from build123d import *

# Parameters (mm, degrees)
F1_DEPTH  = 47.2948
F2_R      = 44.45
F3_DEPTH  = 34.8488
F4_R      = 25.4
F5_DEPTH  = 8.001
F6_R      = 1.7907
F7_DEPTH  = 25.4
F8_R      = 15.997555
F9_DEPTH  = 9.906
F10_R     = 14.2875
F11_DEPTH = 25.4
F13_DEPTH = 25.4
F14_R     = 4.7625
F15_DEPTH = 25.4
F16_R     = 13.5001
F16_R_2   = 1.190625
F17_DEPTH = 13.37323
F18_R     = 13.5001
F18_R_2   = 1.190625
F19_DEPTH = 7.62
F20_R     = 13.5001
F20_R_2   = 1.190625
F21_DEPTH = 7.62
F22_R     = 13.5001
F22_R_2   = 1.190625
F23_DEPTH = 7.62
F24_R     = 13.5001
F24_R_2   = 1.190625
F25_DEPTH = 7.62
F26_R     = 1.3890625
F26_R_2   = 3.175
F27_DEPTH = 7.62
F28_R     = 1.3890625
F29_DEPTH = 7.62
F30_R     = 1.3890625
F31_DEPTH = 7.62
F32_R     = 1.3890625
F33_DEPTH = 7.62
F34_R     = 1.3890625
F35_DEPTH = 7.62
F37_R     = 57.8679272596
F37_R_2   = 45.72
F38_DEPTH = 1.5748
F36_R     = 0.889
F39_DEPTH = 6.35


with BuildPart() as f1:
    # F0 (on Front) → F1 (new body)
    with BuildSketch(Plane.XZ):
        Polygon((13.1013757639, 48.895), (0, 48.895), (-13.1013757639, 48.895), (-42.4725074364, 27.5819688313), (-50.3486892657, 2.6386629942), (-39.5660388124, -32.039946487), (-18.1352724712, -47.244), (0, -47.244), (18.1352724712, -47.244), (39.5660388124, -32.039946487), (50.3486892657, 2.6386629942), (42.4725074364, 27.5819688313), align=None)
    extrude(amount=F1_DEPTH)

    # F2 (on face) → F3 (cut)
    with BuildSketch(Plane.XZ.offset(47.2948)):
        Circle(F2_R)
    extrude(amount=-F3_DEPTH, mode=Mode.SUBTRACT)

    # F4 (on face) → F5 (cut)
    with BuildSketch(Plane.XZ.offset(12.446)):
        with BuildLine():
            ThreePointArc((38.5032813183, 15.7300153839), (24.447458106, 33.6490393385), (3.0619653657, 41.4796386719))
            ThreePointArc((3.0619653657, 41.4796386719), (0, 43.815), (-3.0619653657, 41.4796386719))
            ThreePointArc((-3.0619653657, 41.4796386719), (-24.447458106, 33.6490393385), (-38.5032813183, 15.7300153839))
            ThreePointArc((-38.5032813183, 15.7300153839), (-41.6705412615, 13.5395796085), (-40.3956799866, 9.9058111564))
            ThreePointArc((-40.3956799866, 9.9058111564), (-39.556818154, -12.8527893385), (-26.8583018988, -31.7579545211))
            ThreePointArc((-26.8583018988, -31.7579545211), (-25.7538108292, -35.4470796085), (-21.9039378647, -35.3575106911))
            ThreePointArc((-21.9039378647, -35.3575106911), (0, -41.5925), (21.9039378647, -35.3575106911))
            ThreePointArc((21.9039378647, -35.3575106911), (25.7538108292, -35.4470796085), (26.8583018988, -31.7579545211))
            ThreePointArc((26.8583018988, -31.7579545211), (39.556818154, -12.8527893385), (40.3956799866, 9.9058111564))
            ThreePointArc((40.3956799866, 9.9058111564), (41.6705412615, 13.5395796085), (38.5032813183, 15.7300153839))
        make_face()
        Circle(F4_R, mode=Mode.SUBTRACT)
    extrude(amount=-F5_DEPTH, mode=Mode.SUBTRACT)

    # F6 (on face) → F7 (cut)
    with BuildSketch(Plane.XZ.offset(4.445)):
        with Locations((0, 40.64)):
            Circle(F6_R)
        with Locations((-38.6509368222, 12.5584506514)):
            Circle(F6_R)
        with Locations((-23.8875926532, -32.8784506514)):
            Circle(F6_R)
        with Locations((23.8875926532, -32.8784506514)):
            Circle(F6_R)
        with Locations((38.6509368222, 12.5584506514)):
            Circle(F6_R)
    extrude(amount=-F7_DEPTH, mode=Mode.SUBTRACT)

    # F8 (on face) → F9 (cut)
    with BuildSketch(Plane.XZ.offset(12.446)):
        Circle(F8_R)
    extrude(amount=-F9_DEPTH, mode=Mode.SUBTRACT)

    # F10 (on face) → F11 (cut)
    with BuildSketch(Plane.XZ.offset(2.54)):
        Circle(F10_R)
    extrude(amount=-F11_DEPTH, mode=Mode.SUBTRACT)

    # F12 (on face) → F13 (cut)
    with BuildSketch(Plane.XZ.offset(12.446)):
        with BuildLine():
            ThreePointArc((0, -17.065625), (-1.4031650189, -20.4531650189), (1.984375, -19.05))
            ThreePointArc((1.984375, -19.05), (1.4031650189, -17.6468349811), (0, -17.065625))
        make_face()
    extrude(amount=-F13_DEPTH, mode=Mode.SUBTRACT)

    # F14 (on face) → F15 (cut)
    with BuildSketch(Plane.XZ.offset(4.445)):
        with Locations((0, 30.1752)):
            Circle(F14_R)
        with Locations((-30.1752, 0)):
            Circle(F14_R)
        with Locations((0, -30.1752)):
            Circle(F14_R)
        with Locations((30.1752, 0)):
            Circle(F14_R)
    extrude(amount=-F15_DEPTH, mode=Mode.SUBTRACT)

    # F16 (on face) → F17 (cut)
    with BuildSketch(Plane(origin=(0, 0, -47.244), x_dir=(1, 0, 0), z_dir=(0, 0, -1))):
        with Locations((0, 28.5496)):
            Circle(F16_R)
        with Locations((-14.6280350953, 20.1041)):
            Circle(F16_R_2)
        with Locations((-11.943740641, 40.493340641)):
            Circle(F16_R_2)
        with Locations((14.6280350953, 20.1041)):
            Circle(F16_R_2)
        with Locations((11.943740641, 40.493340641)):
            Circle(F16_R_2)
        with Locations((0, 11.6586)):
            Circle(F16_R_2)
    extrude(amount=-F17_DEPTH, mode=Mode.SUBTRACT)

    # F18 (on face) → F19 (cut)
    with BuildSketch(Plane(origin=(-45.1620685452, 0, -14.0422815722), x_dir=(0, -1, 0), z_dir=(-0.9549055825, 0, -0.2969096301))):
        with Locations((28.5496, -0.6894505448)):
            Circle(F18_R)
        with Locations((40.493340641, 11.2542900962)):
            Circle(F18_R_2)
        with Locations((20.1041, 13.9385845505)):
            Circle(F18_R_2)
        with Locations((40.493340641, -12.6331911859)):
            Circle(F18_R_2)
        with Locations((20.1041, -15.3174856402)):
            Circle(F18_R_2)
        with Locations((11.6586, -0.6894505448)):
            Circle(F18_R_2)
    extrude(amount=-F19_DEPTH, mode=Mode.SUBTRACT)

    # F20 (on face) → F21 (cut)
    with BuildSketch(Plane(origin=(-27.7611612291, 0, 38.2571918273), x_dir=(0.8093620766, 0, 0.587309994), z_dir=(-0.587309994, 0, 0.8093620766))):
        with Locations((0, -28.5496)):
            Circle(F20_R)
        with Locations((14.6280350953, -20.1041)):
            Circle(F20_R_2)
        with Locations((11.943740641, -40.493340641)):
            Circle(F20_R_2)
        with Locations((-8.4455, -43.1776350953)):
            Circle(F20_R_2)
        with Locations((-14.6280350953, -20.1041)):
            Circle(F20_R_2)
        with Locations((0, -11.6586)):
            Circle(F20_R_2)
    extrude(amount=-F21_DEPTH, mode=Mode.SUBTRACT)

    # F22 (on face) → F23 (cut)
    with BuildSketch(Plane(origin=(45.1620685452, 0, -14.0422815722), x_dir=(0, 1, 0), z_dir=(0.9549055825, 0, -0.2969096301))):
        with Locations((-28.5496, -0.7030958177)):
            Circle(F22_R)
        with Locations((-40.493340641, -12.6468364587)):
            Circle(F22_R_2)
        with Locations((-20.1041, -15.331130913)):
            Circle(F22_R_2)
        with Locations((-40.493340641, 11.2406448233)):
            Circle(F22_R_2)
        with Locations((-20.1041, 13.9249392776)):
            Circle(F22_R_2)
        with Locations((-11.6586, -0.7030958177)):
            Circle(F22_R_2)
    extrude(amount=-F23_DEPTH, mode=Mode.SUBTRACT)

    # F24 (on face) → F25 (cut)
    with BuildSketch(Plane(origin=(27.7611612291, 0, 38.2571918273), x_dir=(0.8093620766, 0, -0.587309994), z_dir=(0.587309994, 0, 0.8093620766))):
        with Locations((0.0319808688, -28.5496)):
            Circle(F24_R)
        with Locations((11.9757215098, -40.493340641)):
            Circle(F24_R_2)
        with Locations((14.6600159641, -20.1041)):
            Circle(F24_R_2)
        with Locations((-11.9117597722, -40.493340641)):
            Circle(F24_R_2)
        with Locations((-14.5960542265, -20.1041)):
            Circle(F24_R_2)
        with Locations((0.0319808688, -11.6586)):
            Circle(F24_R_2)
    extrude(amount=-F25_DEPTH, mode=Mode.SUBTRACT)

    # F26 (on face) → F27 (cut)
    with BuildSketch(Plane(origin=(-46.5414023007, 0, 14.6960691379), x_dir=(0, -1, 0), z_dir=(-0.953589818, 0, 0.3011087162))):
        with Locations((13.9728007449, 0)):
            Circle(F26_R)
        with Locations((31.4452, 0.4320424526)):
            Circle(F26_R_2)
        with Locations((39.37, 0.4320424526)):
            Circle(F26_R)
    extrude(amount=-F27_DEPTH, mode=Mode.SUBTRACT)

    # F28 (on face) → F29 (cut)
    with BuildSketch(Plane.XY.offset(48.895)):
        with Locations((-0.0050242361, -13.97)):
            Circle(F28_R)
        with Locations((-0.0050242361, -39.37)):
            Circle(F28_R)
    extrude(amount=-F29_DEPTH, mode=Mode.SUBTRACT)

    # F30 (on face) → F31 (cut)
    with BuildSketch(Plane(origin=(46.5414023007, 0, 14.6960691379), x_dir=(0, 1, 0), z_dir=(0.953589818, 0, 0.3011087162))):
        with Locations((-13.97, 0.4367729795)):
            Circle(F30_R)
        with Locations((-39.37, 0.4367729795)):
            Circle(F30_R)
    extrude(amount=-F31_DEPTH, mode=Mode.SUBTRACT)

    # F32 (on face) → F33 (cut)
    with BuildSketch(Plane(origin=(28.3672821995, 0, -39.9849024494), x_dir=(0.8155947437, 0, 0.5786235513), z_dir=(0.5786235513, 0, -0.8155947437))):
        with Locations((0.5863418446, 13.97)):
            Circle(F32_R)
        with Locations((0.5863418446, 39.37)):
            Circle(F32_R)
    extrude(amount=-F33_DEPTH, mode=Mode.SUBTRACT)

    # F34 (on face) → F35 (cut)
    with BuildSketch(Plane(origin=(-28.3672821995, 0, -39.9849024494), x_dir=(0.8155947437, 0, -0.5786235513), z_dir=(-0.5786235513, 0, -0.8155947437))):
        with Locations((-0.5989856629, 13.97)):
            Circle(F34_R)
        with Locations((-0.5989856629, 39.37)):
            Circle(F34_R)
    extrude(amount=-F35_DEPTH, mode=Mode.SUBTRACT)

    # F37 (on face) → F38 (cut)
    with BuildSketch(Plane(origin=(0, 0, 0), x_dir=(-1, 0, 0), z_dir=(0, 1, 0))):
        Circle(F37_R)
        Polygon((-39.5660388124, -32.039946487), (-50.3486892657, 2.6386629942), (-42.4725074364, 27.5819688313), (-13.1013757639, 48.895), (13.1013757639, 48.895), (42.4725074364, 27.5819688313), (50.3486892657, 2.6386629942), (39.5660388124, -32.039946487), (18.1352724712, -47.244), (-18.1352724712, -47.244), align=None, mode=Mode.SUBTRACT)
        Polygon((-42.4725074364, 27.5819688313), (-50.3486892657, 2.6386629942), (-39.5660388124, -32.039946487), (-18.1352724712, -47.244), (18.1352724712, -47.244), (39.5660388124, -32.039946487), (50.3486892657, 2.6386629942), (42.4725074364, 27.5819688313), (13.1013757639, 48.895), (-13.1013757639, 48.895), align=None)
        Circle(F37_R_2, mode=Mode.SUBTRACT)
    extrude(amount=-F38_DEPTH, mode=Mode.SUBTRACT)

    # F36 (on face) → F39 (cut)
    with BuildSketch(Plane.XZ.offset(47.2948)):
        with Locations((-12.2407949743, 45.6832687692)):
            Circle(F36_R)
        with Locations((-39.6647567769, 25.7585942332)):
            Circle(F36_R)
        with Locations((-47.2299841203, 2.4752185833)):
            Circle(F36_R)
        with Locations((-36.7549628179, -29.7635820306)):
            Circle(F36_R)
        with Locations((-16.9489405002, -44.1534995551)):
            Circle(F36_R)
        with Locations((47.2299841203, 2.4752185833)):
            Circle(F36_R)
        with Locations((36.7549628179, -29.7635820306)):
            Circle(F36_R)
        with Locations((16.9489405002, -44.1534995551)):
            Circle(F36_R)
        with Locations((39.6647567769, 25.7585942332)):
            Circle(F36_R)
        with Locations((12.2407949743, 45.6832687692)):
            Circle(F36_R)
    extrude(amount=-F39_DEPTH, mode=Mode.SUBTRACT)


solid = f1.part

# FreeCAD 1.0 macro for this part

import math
import FreeCAD as App
import Part
import Sketcher

V = App.Vector
Q = App.Units.Quantity


def add_polygon(sketch, points):
    """Adds a closed chain of lines whose ends are joined by coincident constraints."""
    first, n = sketch.GeometryCount, len(points)
    for a, b in zip(points, points[1:] + points[:1]):
        sketch.addGeometry(Part.LineSegment(App.Vector(*a, 0), App.Vector(*b, 0)), False)
    for i in range(n):
        sketch.addConstraint(Sketcher.Constraint("Coincident", first + i, 2, first + (i + 1) % n, 1))

doc = App.newDocument("Part")
body = doc.addObject("PartDesign::Body", "Body")

# Sketch on XZ plane
sketch1 = body.newObject("Sketcher::SketchObject", "Sketch")
sketch1.AttachmentSupport = (doc.getObject("XZ_Plane"), [""])
sketch1.MapMode = "FlatFace"
add_polygon(sketch1, [(13.101376, 48.895), (-13.101376, 48.895), (-42.472507, 27.581969), (-50.348689, 2.638663), (-39.566039, -32.039946), (-18.135272, -47.244), (18.135272, -47.244), (39.566039, -32.039946), (50.348689, 2.638663), (42.472507, 27.581969)])  # lines 0-9
sketch1.addConstraint([
    Sketcher.Constraint("Horizontal", 0),
    Sketcher.Constraint("Horizontal", 5),
    Sketcher.Constraint("Symmetric", 3, 2, 6, 2, -2),
    Sketcher.Constraint("Symmetric", 2, 2, 7, 2, -2),
    Sketcher.Constraint("Symmetric", 1, 2, 8, 2, -2),
    Sketcher.Constraint("Equal", 4, 6),
    Sketcher.Constraint("Equal", 1, 9),
    Sketcher.Constraint("DistanceY", 4, 2, -1, 1, Q("1.86 in")),
    Sketcher.Constraint("DistanceY", -1, 1, 0, 2, Q("1.925 in")),
    Sketcher.Constraint("DistanceX", 0, 2, 0, 1, Q("26.202752 mm")),
    Sketcher.Constraint("Distance", 2, Q("26.157269 mm")),
    Sketcher.Constraint("Distance", 3, Q("36.316271 mm")),
    Sketcher.Constraint("DistanceX", 5, 1, 5, 2, Q("36.270545 mm")),
    Sketcher.Constraint("DistanceY", -1, 1, 1, 2, Q("27.581969 mm")),
    Sketcher.Constraint("DistanceX", 2, 2, -1, 1, Q("50.348689 mm")),
    Sketcher.Constraint("DistanceX", 3, 2, -1, 1, Q("39.566039 mm")),
    Sketcher.Constraint("DistanceX", 1, 2, 0, 2, Q("29.371132 mm")),
])
pad1 = body.newObject("PartDesign::Pad", "Pad")
pad1.Profile = sketch1
pad1.Length = Q("1.862 in")

# Sketch on XZ plane
sketch2 = body.newObject("Sketcher::SketchObject", "Sketch001")
sketch2.AttachmentSupport = (doc.getObject("XZ_Plane"), [""])
sketch2.MapMode = "FlatFace"
sketch2.AttachmentOffset = App.Placement(V(0, 0, 1.862 * 25.4), App.Rotation())
sketch2.addGeometry(Part.Circle(V(0, 0, 0), V(0, 0, 1), 44.45), False)
sketch2.addConstraint([
    Sketcher.Constraint("Coincident", 0, 3, -1, 1),
    Sketcher.Constraint("Diameter", 0, Q("3.5 in")),
])
pocket1 = body.newObject("PartDesign::Pocket", "Pocket")
pocket1.Profile = sketch2
pocket1.Length = Q("1.372 in")

# Sketch on XZ plane
sketch3 = body.newObject("Sketcher::SketchObject", "Sketch002")
sketch3.AttachmentSupport = (doc.getObject("XZ_Plane"), [""])
sketch3.MapMode = "FlatFace"
sketch3.AttachmentOffset = App.Placement(V(0, 0, 0.49 * 25.4), App.Rotation())
sketch3.addGeometry([
    Part.ArcOfCircle(Part.Circle(V(0, 0, 0), V(0, 0, 1), 41.5925), math.radians(22.221832), math.radians(85.778168)),  # 0
    Part.ArcOfCircle(Part.Circle(V(0, 40.64, 0), V(0, 0, 1), 3.175), math.radians(15.33446), math.radians(164.66554)),  # 1
    Part.ArcOfCircle(Part.Circle(V(0, 0, 0), V(0, 0, 1), 41.5925), math.radians(94.221832), math.radians(157.778168)),  # 2
    Part.ArcOfCircle(Part.Circle(V(-38.650937, 12.558451, 0), V(0, 0, 1), 3.175), math.radians(87.33446), math.radians(236.66554)),  # 3
    Part.ArcOfCircle(Part.Circle(V(0, 0, 0), V(0, 0, 1), 41.5925), math.radians(166.221832), math.radians(229.778168)),  # 4
    Part.ArcOfCircle(Part.Circle(V(-23.887593, -32.878451, 0), V(0, 0, 1), 3.175), math.radians(159.33446), math.radians(308.66554)),  # 5
    Part.ArcOfCircle(Part.Circle(V(0, 0, 0), V(0, 0, 1), 41.5925), math.radians(-121.778168), math.radians(-58.221832)),  # 6
    Part.ArcOfCircle(Part.Circle(V(23.887593, -32.878451, 0), V(0, 0, 1), 3.175), math.radians(-128.66554), math.radians(20.66554)),  # 7
    Part.ArcOfCircle(Part.Circle(V(0, 0, 0), V(0, 0, 1), 41.5925), math.radians(-49.778168), math.radians(13.778168)),  # 8
    Part.ArcOfCircle(Part.Circle(V(38.650937, 12.558451, 0), V(0, 0, 1), 3.175), math.radians(-56.66554), math.radians(92.66554)),  # 9
    Part.Circle(V(0, 0, 0), V(0, 0, 1), 25.4),  # 10
], False)
sketch3.addConstraint([
    Sketcher.Constraint("Coincident", 0, 2, 1, 1),
    Sketcher.Constraint("Coincident", 1, 2, 2, 1),
    Sketcher.Constraint("Coincident", 2, 2, 3, 1),
    Sketcher.Constraint("Coincident", 3, 2, 4, 1),
    Sketcher.Constraint("Coincident", 4, 2, 5, 1),
    Sketcher.Constraint("Coincident", 5, 2, 6, 1),
    Sketcher.Constraint("Coincident", 6, 2, 7, 1),
    Sketcher.Constraint("Coincident", 7, 2, 8, 1),
    Sketcher.Constraint("Coincident", 8, 2, 9, 1),
    Sketcher.Constraint("Coincident", 9, 2, 0, 1),
    Sketcher.Constraint("Coincident", 0, 3, -1, 1),
    Sketcher.Constraint("Coincident", 2, 3, -1, 1),
    Sketcher.Constraint("Coincident", 4, 3, -1, 1),
    Sketcher.Constraint("Coincident", 6, 3, -1, 1),
    Sketcher.Constraint("Coincident", 8, 3, -1, 1),
    Sketcher.Constraint("Coincident", 10, 3, -1, 1),
    Sketcher.Constraint("Equal", 0, 2),
    Sketcher.Constraint("Equal", 1, 3),
    Sketcher.Constraint("Equal", 2, 4),
    Sketcher.Constraint("Equal", 3, 5),
    Sketcher.Constraint("Equal", 4, 6),
    Sketcher.Constraint("Equal", 5, 7),
    Sketcher.Constraint("Equal", 6, 8),
    Sketcher.Constraint("Equal", 7, 9),
    Sketcher.Constraint("Symmetric", 5, 3, 7, 3, -2),
    Sketcher.Constraint("Symmetric", 3, 3, 9, 3, -2),
    Sketcher.Constraint("PointOnObject", 1, 3, -2),
    Sketcher.Constraint("Diameter", 10, Q("2 in")),
    Sketcher.Constraint("Radius", 1, Q("0.125 in")),
    Sketcher.Constraint("DistanceY", -1, 1, 1, 3, Q("1.6 in")),
    Sketcher.Constraint("Radius", 0, Q("1.6375 in")),
    Sketcher.Constraint("DistanceX", 4, 2, -1, 1, Q("26.858302 mm")),
    Sketcher.Constraint("DistanceY", 5, 3, 3, 3, Q("45.436901 mm")),
    Sketcher.Constraint("DistanceX", 3, 2, 2, 2, Q("1.892399 mm")),
    Sketcher.Constraint("DistanceY", -1, 1, 3, 3, Q("12.558451 mm")),
])
pocket2 = body.newObject("PartDesign::Pocket", "Pocket001")
pocket2.Profile = sketch3
pocket2.Length = Q("0.315 in")

# Sketch on XZ plane
sketch4 = body.newObject("Sketcher::SketchObject", "Sketch003")
sketch4.AttachmentSupport = (doc.getObject("XZ_Plane"), [""])
sketch4.MapMode = "FlatFace"
sketch4.AttachmentOffset = App.Placement(V(0, 0, 0.175 * 25.4), App.Rotation())
sketch4.addGeometry([
    Part.Circle(V(0, 40.64, 0), V(0, 0, 1), 1.7907),  # 0
    Part.Circle(V(-38.650937, 12.558451, 0), V(0, 0, 1), 1.7907),  # 1
    Part.Circle(V(-23.887593, -32.878451, 0), V(0, 0, 1), 1.7907),  # 2
    Part.Circle(V(23.887593, -32.878451, 0), V(0, 0, 1), 1.7907),  # 3
    Part.Circle(V(38.650937, 12.558451, 0), V(0, 0, 1), 1.7907),  # 4
], False)
sketch4.addConstraint([
    Sketcher.Constraint("Equal", 0, 1),
    Sketcher.Constraint("Equal", 1, 2),
    Sketcher.Constraint("Equal", 2, 3),
    Sketcher.Constraint("Equal", 3, 4),
    Sketcher.Constraint("Symmetric", 2, 3, 3, 3, -2),
    Sketcher.Constraint("Symmetric", 1, 3, 4, 3, -2),
    Sketcher.Constraint("PointOnObject", 0, 3, -2),
    Sketcher.Constraint("Diameter", 0, Q("0.141 in")),
    Sketcher.Constraint("DistanceY", -1, 1, 0, 3, Q("1.6 in")),
    Sketcher.Constraint("DistanceY", 2, 3, 1, 3, Q("45.436901 mm")),
    Sketcher.Constraint("DistanceY", -1, 1, 1, 3, Q("12.558451 mm")),
    Sketcher.Constraint("DistanceX", 1, 3, 3, 3, Q("62.538529 mm")),
    Sketcher.Constraint("DistanceX", 1, 3, -1, 1, Q("38.650937 mm")),
])
pocket3 = body.newObject("PartDesign::Pocket", "Pocket002")
pocket3.Profile = sketch4
pocket3.Length = Q("1 in")

# Sketch on XZ plane
sketch5 = body.newObject("Sketcher::SketchObject", "Sketch004")
sketch5.AttachmentSupport = (doc.getObject("XZ_Plane"), [""])
sketch5.MapMode = "FlatFace"
sketch5.AttachmentOffset = App.Placement(V(0, 0, 0.49 * 25.4), App.Rotation())
sketch5.addGeometry(Part.Circle(V(0, 0, 0), V(0, 0, 1), 15.997555), False)
sketch5.addConstraint([
    Sketcher.Constraint("Coincident", 0, 3, -1, 1),
    Sketcher.Constraint("Diameter", 0, Q("31.99511 mm")),
])
pocket4 = body.newObject("PartDesign::Pocket", "Pocket003")
pocket4.Profile = sketch5
pocket4.Length = Q("0.39 in")

# Sketch on XZ plane
sketch6 = body.newObject("Sketcher::SketchObject", "Sketch005")
sketch6.AttachmentSupport = (doc.getObject("XZ_Plane"), [""])
sketch6.MapMode = "FlatFace"
sketch6.AttachmentOffset = App.Placement(V(0, 0, 0.1 * 25.4), App.Rotation())
sketch6.addGeometry(Part.Circle(V(0, 0, 0), V(0, 0, 1), 14.2875), False)
sketch6.addConstraint([
    Sketcher.Constraint("Coincident", 0, 3, -1, 1),
    Sketcher.Constraint("Diameter", 0, Q("1.125 in")),
])
pocket5 = body.newObject("PartDesign::Pocket", "Pocket004")
pocket5.Profile = sketch6
pocket5.Length = Q("1 in")

# Sketch on XZ plane
sketch7 = body.newObject("Sketcher::SketchObject", "Sketch006")
sketch7.AttachmentSupport = (doc.getObject("XZ_Plane"), [""])
sketch7.MapMode = "FlatFace"
sketch7.AttachmentOffset = App.Placement(V(0, 0, 0.49 * 25.4), App.Rotation())
sketch7.addGeometry([
    Part.ArcOfCircle(Part.Circle(V(0, -19.05, 0), V(0, 0, 1), 1.984375), math.radians(90), math.radians(360)),
    Part.ArcOfCircle(Part.Circle(V(0, -19.05, 0), V(0, 0, 1), 1.984375), math.radians(0), math.radians(90)),
], False)
sketch7.addConstraint([
    Sketcher.Constraint("Tangent", 0, 1, 1, 2),
    Sketcher.Constraint("Coincident", 1, 1, 0, 2),
    Sketcher.Constraint("PointOnObject", 0, 3, -2),
    Sketcher.Constraint("PointOnObject", 0, 1, -2),
    Sketcher.Constraint("Horizontal", 0, 3, 1, 1),
    Sketcher.Constraint("Radius", 0, Q("0.078125 in")),
    Sketcher.Constraint("DistanceY", 0, 3, -1, 1, Q("0.75 in")),
])
pocket6 = body.newObject("PartDesign::Pocket", "Pocket005")
pocket6.Profile = sketch7
pocket6.Length = Q("1 in")

# Sketch on XZ plane
sketch8 = body.newObject("Sketcher::SketchObject", "Sketch007")
sketch8.AttachmentSupport = (doc.getObject("XZ_Plane"), [""])
sketch8.MapMode = "FlatFace"
sketch8.AttachmentOffset = App.Placement(V(0, 0, 0.175 * 25.4), App.Rotation())
sketch8.addGeometry([
    Part.Circle(V(0, 30.1752, 0), V(0, 0, 1), 4.7625),
    Part.Circle(V(-30.1752, 0, 0), V(0, 0, 1), 4.7625),
    Part.Circle(V(0, -30.1752, 0), V(0, 0, 1), 4.7625),
    Part.Circle(V(30.1752, 0, 0), V(0, 0, 1), 4.7625),
], False)
sketch8.addConstraint([
    Sketcher.Constraint("Equal", 0, 1),
    Sketcher.Constraint("Equal", 1, 2),
    Sketcher.Constraint("Equal", 2, 3),
    Sketcher.Constraint("Symmetric", 0, 3, 2, 3, -1, 1),
    Sketcher.Constraint("Symmetric", 1, 3, 3, 3, -1, 1),
    Sketcher.Constraint("PointOnObject", 0, 3, -2),
    Sketcher.Constraint("PointOnObject", 1, 3, -1),
    Sketcher.Constraint("Diameter", 0, Q("0.375 in")),
    Sketcher.Constraint("DistanceY", -1, 1, 0, 3, Q("1.188 in")),
    Sketcher.Constraint("DistanceX", 1, 3, -1, 1, Q("1.188 in")),
])
pocket7 = body.newObject("PartDesign::Pocket", "Pocket006")
pocket7.Profile = sketch8
pocket7.Length = Q("1 in")

# Sketch on XY plane
sketch9 = body.newObject("Sketcher::SketchObject", "Sketch008")
sketch9.AttachmentSupport = (doc.getObject("XY_Plane"), [""])
sketch9.MapMode = "FlatFace"
sketch9.AttachmentOffset = App.Placement(V(0, 0, -1.86 * 25.4), App.Rotation())
sketch9.addGeometry([
    Part.Circle(V(0, -28.5496, 0), V(0, 0, 1), 13.5001),  # 0
    Part.Circle(V(-14.628035, -20.1041, 0), V(0, 0, 1), 1.190625),  # 1
    Part.Circle(V(-11.943741, -40.493341, 0), V(0, 0, 1), 1.190625),  # 2
    Part.Circle(V(14.628035, -20.1041, 0), V(0, 0, 1), 1.190625),  # 3
    Part.Circle(V(11.943741, -40.493341, 0), V(0, 0, 1), 1.190625),  # 4
    Part.Circle(V(0, -11.6586, 0), V(0, 0, 1), 1.190625),  # 5
], False)
sketch9.addConstraint([
    Sketcher.Constraint("Equal", 1, 2),
    Sketcher.Constraint("Equal", 2, 3),
    Sketcher.Constraint("Equal", 3, 4),
    Sketcher.Constraint("Equal", 4, 5),
    Sketcher.Constraint("Symmetric", 1, 3, 3, 3, -2),
    Sketcher.Constraint("Symmetric", 2, 3, 4, 3, -2),
    Sketcher.Constraint("PointOnObject", 0, 3, -2),
    Sketcher.Constraint("PointOnObject", 5, 3, -2),
    Sketcher.Constraint("Diameter", 0, Q("1.063 in")),
    Sketcher.Constraint("Diameter", 1, Q("0.09375 in")),
    Sketcher.Constraint("DistanceY", 0, 3, -1, 1, Q("1.124 in")),
    Sketcher.Constraint("DistanceY", 5, 3, -1, 1, Q("0.459 in")),
    Sketcher.Constraint("DistanceY", 1, 3, -1, 1, Q("0.7915 in")),
    Sketcher.Constraint("DistanceX", 2, 3, -1, 1, Q("11.943741 mm")),
    Sketcher.Constraint("DistanceY", 2, 3, -1, 1, Q("40.493341 mm")),
    Sketcher.Constraint("DistanceX", 1, 3, 3, 3, Q("29.25607 mm")),
])
pocket8 = body.newObject("PartDesign::Pocket", "Pocket007")
pocket8.Profile = sketch9
pocket8.Length = 13.37323
pocket8.Reversed = True

# Sketch on an angled plane
sketch10 = body.newObject("Sketcher::SketchObject", "Sketch009")
sketch10.Placement = App.Placement(V(-45.162069, 0, -14.042282), App.Rotation(V(0, -1, 0), V(-0.29690963, 0, 0.954905583), V(-0.954905583, 0, -0.29690963), "ZXY"))
sketch10.addGeometry([
    Part.Circle(V(28.5496, -0.689451, 0), V(0, 0, 1), 13.5001),  # 0
    Part.Circle(V(40.493341, 11.25429, 0), V(0, 0, 1), 1.190625),  # 1
    Part.Circle(V(20.1041, 13.938585, 0), V(0, 0, 1), 1.190625),  # 2
    Part.Circle(V(40.493341, -12.633191, 0), V(0, 0, 1), 1.190625),  # 3
    Part.Circle(V(20.1041, -15.317486, 0), V(0, 0, 1), 1.190625),  # 4
    Part.Circle(V(11.6586, -0.689451, 0), V(0, 0, 1), 1.190625),  # 5
], False)
sketch10.addConstraint([
    Sketcher.Constraint("Equal", 1, 2),
    Sketcher.Constraint("Equal", 2, 3),
    Sketcher.Constraint("Equal", 3, 4),
    Sketcher.Constraint("Equal", 4, 5),
    Sketcher.Constraint("Horizontal", 0, 3, 5, 3),
    Sketcher.Constraint("Vertical", 1, 3, 3, 3),
    Sketcher.Constraint("Vertical", 2, 3, 4, 3),
    Sketcher.Constraint("Diameter", 0, Q("1.063 in")),
    Sketcher.Constraint("Diameter", 1, Q("0.09375 in")),
    Sketcher.Constraint("DistanceX", -1, 1, 0, 3, Q("1.124 in")),
    Sketcher.Constraint("DistanceX", -1, 1, 5, 3, Q("0.459 in")),
    Sketcher.Constraint("DistanceX", -1, 1, 2, 3, Q("0.7915 in")),
    Sketcher.Constraint("DistanceY", 0, 3, -1, 1, Q("0.689451 mm")),
    Sketcher.Constraint("DistanceX", -1, 1, 1, 3, Q("40.493341 mm")),
    Sketcher.Constraint("DistanceY", -1, 1, 1, 3, Q("11.25429 mm")),
    Sketcher.Constraint("DistanceY", 3, 3, -1, 1, Q("12.633191 mm")),
    Sketcher.Constraint("DistanceY", 4, 3, 2, 3, Q("29.25607 mm")),
    Sketcher.Constraint("DistanceY", -1, 1, 2, 3, Q("13.938585 mm")),
])
pocket9 = body.newObject("PartDesign::Pocket", "Pocket008")
pocket9.Profile = sketch10
pocket9.Length = Q("0.3 in")

# Sketch on an angled plane
sketch11 = body.newObject("Sketcher::SketchObject", "Sketch010")
sketch11.Placement = App.Placement(V(-27.761161, 0, 38.257192), App.Rotation(V(0.809362077, 0, 0.587309994), V(0, 1.000000001, 0), V(-0.587309994, 0, 0.809362077), "ZXY"))
sketch11.addGeometry([
    Part.Circle(V(0, -28.5496, 0), V(0, 0, 1), 13.5001),  # 0
    Part.Circle(V(14.628035, -20.1041, 0), V(0, 0, 1), 1.190625),  # 1
    Part.Circle(V(11.943741, -40.493341, 0), V(0, 0, 1), 1.190625),  # 2
    Part.Circle(V(-8.4455, -43.177635, 0), V(0, 0, 1), 1.190625),  # 3
    Part.Circle(V(-14.628035, -20.1041, 0), V(0, 0, 1), 1.190625),  # 4
    Part.Circle(V(0, -11.6586, 0), V(0, 0, 1), 1.190625),  # 5
], False)
sketch11.addConstraint([
    Sketcher.Constraint("Equal", 1, 2),
    Sketcher.Constraint("Equal", 2, 3),
    Sketcher.Constraint("Equal", 3, 4),
    Sketcher.Constraint("Equal", 4, 5),
    Sketcher.Constraint("Symmetric", 1, 3, 4, 3, -2),
    Sketcher.Constraint("PointOnObject", 0, 3, -2),
    Sketcher.Constraint("PointOnObject", 5, 3, -2),
    Sketcher.Constraint("Diameter", 0, Q("1.063 in")),
    Sketcher.Constraint("Diameter", 1, Q("0.09375 in")),
    Sketcher.Constraint("DistanceY", 0, 3, -1, 1, Q("1.124 in")),
    Sketcher.Constraint("DistanceY", 5, 3, -1, 1, Q("0.459 in")),
    Sketcher.Constraint("DistanceY", 1, 3, -1, 1, Q("0.7915 in")),
    Sketcher.Constraint("DistanceX", 3, 3, -1, 1, Q("0.3325 in")),
    Sketcher.Constraint("DistanceX", -1, 1, 2, 3, Q("11.943741 mm")),
    Sketcher.Constraint("DistanceY", 2, 3, -1, 1, Q("40.493341 mm")),
    Sketcher.Constraint("DistanceX", 4, 3, 1, 3, Q("29.25607 mm")),
    Sketcher.Constraint("DistanceY", 3, 3, -1, 1, Q("43.177635 mm")),
])
pocket10 = body.newObject("PartDesign::Pocket", "Pocket009")
pocket10.Profile = sketch11
pocket10.Length = Q("0.3 in")

# Sketch on an angled plane
sketch12 = body.newObject("Sketcher::SketchObject", "Sketch011")
sketch12.Placement = App.Placement(V(45.162069, 0, -14.042282), App.Rotation(V(0, 1, 0), V(0.29690963, 0, 0.954905583), V(0.954905583, 0, -0.29690963), "ZXY"))
sketch12.addGeometry([
    Part.Circle(V(-28.5496, -0.703096, 0), V(0, 0, 1), 13.5001),  # 0
    Part.Circle(V(-40.493341, -12.646836, 0), V(0, 0, 1), 1.190625),  # 1
    Part.Circle(V(-20.1041, -15.331131, 0), V(0, 0, 1), 1.190625),  # 2
    Part.Circle(V(-40.493341, 11.240645, 0), V(0, 0, 1), 1.190625),  # 3
    Part.Circle(V(-20.1041, 13.924939, 0), V(0, 0, 1), 1.190625),  # 4
    Part.Circle(V(-11.6586, -0.703096, 0), V(0, 0, 1), 1.190625),  # 5
], False)
sketch12.addConstraint([
    Sketcher.Constraint("Equal", 1, 2),
    Sketcher.Constraint("Equal", 2, 3),
    Sketcher.Constraint("Equal", 3, 4),
    Sketcher.Constraint("Equal", 4, 5),
    Sketcher.Constraint("Horizontal", 0, 3, 5, 3),
    Sketcher.Constraint("Vertical", 1, 3, 3, 3),
    Sketcher.Constraint("Vertical", 2, 3, 4, 3),
    Sketcher.Constraint("Diameter", 0, Q("1.063 in")),
    Sketcher.Constraint("Diameter", 1, Q("0.09375 in")),
    Sketcher.Constraint("DistanceX", 0, 3, -1, 1, Q("1.124 in")),
    Sketcher.Constraint("DistanceX", 5, 3, -1, 1, Q("0.459 in")),
    Sketcher.Constraint("DistanceX", 2, 3, -1, 1, Q("0.7915 in")),
    Sketcher.Constraint("DistanceX", 1, 3, -1, 1, Q("40.493341 mm")),
    Sketcher.Constraint("DistanceY", 2, 3, -1, 1, Q("15.331131 mm")),
    Sketcher.Constraint("DistanceY", -1, 1, 4, 3, Q("13.924939 mm")),
    Sketcher.Constraint("DistanceY", 1, 3, 0, 3, Q("11.943741 mm")),
    Sketcher.Constraint("DistanceY", 0, 3, 3, 3, Q("11.943741 mm")),
    Sketcher.Constraint("DistanceY", 0, 3, -1, 1, Q("0.703096 mm")),
])
pocket11 = body.newObject("PartDesign::Pocket", "Pocket010")
pocket11.Profile = sketch12
pocket11.Length = Q("0.3 in")

# Sketch on an angled plane
sketch13 = body.newObject("Sketcher::SketchObject", "Sketch012")
sketch13.Placement = App.Placement(V(27.761161, 0, 38.257192), App.Rotation(V(0.809362077, 0, -0.587309994), V(0, 1.000000001, 0), V(0.587309994, 0, 0.809362077), "ZXY"))
sketch13.addGeometry([
    Part.Circle(V(0.031981, -28.5496, 0), V(0, 0, 1), 13.5001),  # 0
    Part.Circle(V(11.975722, -40.493341, 0), V(0, 0, 1), 1.190625),  # 1
    Part.Circle(V(14.660016, -20.1041, 0), V(0, 0, 1), 1.190625),  # 2
    Part.Circle(V(-11.91176, -40.493341, 0), V(0, 0, 1), 1.190625),  # 3
    Part.Circle(V(-14.596054, -20.1041, 0), V(0, 0, 1), 1.190625),  # 4
    Part.Circle(V(0.031981, -11.6586, 0), V(0, 0, 1), 1.190625),  # 5
], False)
sketch13.addConstraint([
    Sketcher.Constraint("Equal", 1, 2),
    Sketcher.Constraint("Equal", 2, 3),
    Sketcher.Constraint("Equal", 3, 4),
    Sketcher.Constraint("Equal", 4, 5),
    Sketcher.Constraint("Horizontal", 1, 3, 3, 3),
    Sketcher.Constraint("Horizontal", 2, 3, 4, 3),
    Sketcher.Constraint("Vertical", 0, 3, 5, 3),
    Sketcher.Constraint("Diameter", 0, Q("1.063 in")),
    Sketcher.Constraint("Diameter", 1, Q("0.09375 in")),
    Sketcher.Constraint("DistanceY", 0, 3, -1, 1, Q("1.124 in")),
    Sketcher.Constraint("DistanceY", 5, 3, -1, 1, Q("0.459 in")),
    Sketcher.Constraint("DistanceY", 2, 3, -1, 1, Q("0.7915 in")),
    Sketcher.Constraint("DistanceX", -1, 1, 0, 3, Q("0.031981 mm")),
    Sketcher.Constraint("DistanceX", -1, 1, 1, 3, Q("11.975722 mm")),
    Sketcher.Constraint("DistanceY", 1, 3, -1, 1, Q("40.493341 mm")),
    Sketcher.Constraint("DistanceX", 3, 3, -1, 1, Q("11.91176 mm")),
    Sketcher.Constraint("DistanceX", 4, 3, 2, 3, Q("29.25607 mm")),
    Sketcher.Constraint("DistanceX", -1, 1, 2, 3, Q("14.660016 mm")),
])
pocket12 = body.newObject("PartDesign::Pocket", "Pocket011")
pocket12.Profile = sketch13
pocket12.Length = Q("0.3 in")

# Sketch on an angled plane
sketch14 = body.newObject("Sketcher::SketchObject", "Sketch013")
sketch14.Placement = App.Placement(V(-46.541402, 0, 14.696069), App.Rotation(V(0, -1, 0), V(0.301108716, 0, 0.953589818), V(-0.953589818, 0, 0.301108716), "ZXY"))
sketch14.addGeometry([
    Part.Circle(V(13.972801, 0, 0), V(0, 0, 1), 1.389063),
    Part.Circle(V(31.4452, 0.432042, 0), V(0, 0, 1), 3.175),
    Part.Circle(V(39.37, 0.432042, 0), V(0, 0, 1), 1.389063),
], False)
sketch14.addConstraint([
    Sketcher.Constraint("Equal", 0, 2),
    Sketcher.Constraint("PointOnObject", 0, 3, -1),
    Sketcher.Constraint("Horizontal", 1, 3, 2, 3),
    Sketcher.Constraint("Diameter", 1, Q("0.25 in")),
    Sketcher.Constraint("Diameter", 0, Q("0.109375 in")),
    Sketcher.Constraint("DistanceX", -1, 1, 2, 3, Q("1.55 in")),
    Sketcher.Constraint("DistanceX", -1, 1, 1, 3, Q("1.238 in")),
    Sketcher.Constraint("DistanceX", -1, 1, 0, 3, Q("13.972801 mm")),
    Sketcher.Constraint("DistanceY", -1, 1, 1, 3, Q("0.432042 mm")),
])
pocket13 = body.newObject("PartDesign::Pocket", "Pocket012")
pocket13.Profile = sketch14
pocket13.Length = Q("0.3 in")

# Sketch on XY plane
sketch15 = body.newObject("Sketcher::SketchObject", "Sketch014")
sketch15.AttachmentSupport = (doc.getObject("XY_Plane"), [""])
sketch15.MapMode = "FlatFace"
sketch15.AttachmentOffset = App.Placement(V(0, 0, 1.925 * 25.4), App.Rotation())
sketch15.addGeometry([
    Part.Circle(V(-0.005024, -13.97, 0), V(0, 0, 1), 1.389063),
    Part.Circle(V(-0.005024, -39.37, 0), V(0, 0, 1), 1.389063),
], False)
sketch15.addConstraint([
    Sketcher.Constraint("Equal", 0, 1),
    Sketcher.Constraint("Vertical", 0, 3, 1, 3),
    Sketcher.Constraint("Diameter", 0, Q("0.109375 in")),
    Sketcher.Constraint("DistanceY", 1, 3, 0, 3, Q("1 in")),
    Sketcher.Constraint("DistanceY", 0, 3, -1, 1, Q("0.55 in")),
    Sketcher.Constraint("DistanceX", 0, 3, -1, 1, Q("0.005024 mm")),
])
pocket14 = body.newObject("PartDesign::Pocket", "Pocket013")
pocket14.Profile = sketch15
pocket14.Length = Q("0.3 in")

# Sketch on an angled plane
sketch16 = body.newObject("Sketcher::SketchObject", "Sketch015")
sketch16.Placement = App.Placement(V(46.541402, 0, 14.696069), App.Rotation(V(0, 1, 0), V(-0.301108716, 0, 0.953589818), V(0.953589818, 0, 0.301108716), "ZXY"))
sketch16.addGeometry([
    Part.Circle(V(-13.97, 0.436773, 0), V(0, 0, 1), 1.389063),
    Part.Circle(V(-39.37, 0.436773, 0), V(0, 0, 1), 1.389063),
], False)
sketch16.addConstraint([
    Sketcher.Constraint("Equal", 0, 1),
    Sketcher.Constraint("Horizontal", 0, 3, 1, 3),
    Sketcher.Constraint("Diameter", 0, Q("0.109375 in")),
    Sketcher.Constraint("DistanceX", 1, 3, 0, 3, Q("1 in")),
    Sketcher.Constraint("DistanceX", 0, 3, -1, 1, Q("0.55 in")),
    Sketcher.Constraint("DistanceY", -1, 1, 0, 3, Q("0.436773 mm")),
])
pocket15 = body.newObject("PartDesign::Pocket", "Pocket014")
pocket15.Profile = sketch16
pocket15.Length = Q("0.3 in")

# Sketch on an angled plane
sketch17 = body.newObject("Sketcher::SketchObject", "Sketch016")
sketch17.Placement = App.Placement(V(28.367282, 0, -39.984902), App.Rotation(V(0.815594744, 0, 0.578623551), V(0, -1, 0), V(0.578623551, 0, -0.815594744), "ZXY"))
sketch17.addGeometry([
    Part.Circle(V(0.586342, 13.97, 0), V(0, 0, 1), 1.389063),
    Part.Circle(V(0.586342, 39.37, 0), V(0, 0, 1), 1.389063),
], False)
sketch17.addConstraint([
    Sketcher.Constraint("Equal", 0, 1),
    Sketcher.Constraint("Vertical", 0, 3, 1, 3),
    Sketcher.Constraint("Diameter", 0, Q("0.109375 in")),
    Sketcher.Constraint("DistanceY", 0, 3, 1, 3, Q("1 in")),
    Sketcher.Constraint("DistanceY", -1, 1, 0, 3, Q("0.55 in")),
    Sketcher.Constraint("DistanceX", -1, 1, 0, 3, Q("0.586342 mm")),
])
pocket16 = body.newObject("PartDesign::Pocket", "Pocket015")
pocket16.Profile = sketch17
pocket16.Length = Q("0.3 in")

# Sketch on an angled plane
sketch18 = body.newObject("Sketcher::SketchObject", "Sketch017")
sketch18.Placement = App.Placement(V(-28.367282, 0, -39.984902), App.Rotation(V(0.815594744, 0, -0.578623551), V(0, -1, 0), V(-0.578623551, 0, -0.815594744), "ZXY"))
sketch18.addGeometry([
    Part.Circle(V(-0.598986, 13.97, 0), V(0, 0, 1), 1.389063),
    Part.Circle(V(-0.598986, 39.37, 0), V(0, 0, 1), 1.389063),
], False)
sketch18.addConstraint([
    Sketcher.Constraint("Equal", 0, 1),
    Sketcher.Constraint("Vertical", 0, 3, 1, 3),
    Sketcher.Constraint("Diameter", 0, Q("0.109375 in")),
    Sketcher.Constraint("DistanceY", 0, 3, 1, 3, Q("1 in")),
    Sketcher.Constraint("DistanceY", -1, 1, 0, 3, Q("0.55 in")),
    Sketcher.Constraint("DistanceX", 0, 3, -1, 1, Q("0.598986 mm")),
])
pocket17 = body.newObject("PartDesign::Pocket", "Pocket016")
pocket17.Profile = sketch18
pocket17.Length = Q("0.3 in")

# Sketch on XZ plane
sketch19 = body.newObject("Sketcher::SketchObject", "Sketch018")
sketch19.AttachmentSupport = (doc.getObject("XZ_Plane"), [""])
sketch19.MapMode = "FlatFace"
sketch19.addGeometry([
    Part.Circle(V(0, 0, 0), V(0, 0, 1), 57.867927),
    Part.Circle(V(0, 0, 0), V(0, 0, 1), 45.72),
], False)
sketch19.addConstraint([
    Sketcher.Constraint("Coincident", 0, 3, -1, 1),
    Sketcher.Constraint("Coincident", 1, 3, -1, 1),
    Sketcher.Constraint("Diameter", 1, Q("3.6 in")),
    Sketcher.Constraint("Diameter", 0, Q("115.735855 mm")),
])
pocket18 = body.newObject("PartDesign::Pocket", "Pocket017")
pocket18.Profile = sketch19
pocket18.Length = Q("0.062 in")
pocket18.Reversed = True

# Sketch on XZ plane
sketch20 = body.newObject("Sketcher::SketchObject", "Sketch019")
sketch20.AttachmentSupport = (doc.getObject("XZ_Plane"), [""])
sketch20.MapMode = "FlatFace"
sketch20.AttachmentOffset = App.Placement(V(0, 0, 1.862 * 25.4), App.Rotation())
sketch20.addGeometry([
    Part.Circle(V(-12.240795, 45.683269, 0), V(0, 0, 1), 0.889),  # 0
    Part.Circle(V(-39.664757, 25.758594, 0), V(0, 0, 1), 0.889),  # 1
    Part.Circle(V(-47.229984, 2.475219, 0), V(0, 0, 1), 0.889),  # 2
    Part.Circle(V(-36.754963, -29.763582, 0), V(0, 0, 1), 0.889),  # 3
    Part.Circle(V(-16.94894, -44.1535, 0), V(0, 0, 1), 0.889),  # 4
    Part.Circle(V(47.229984, 2.475219, 0), V(0, 0, 1), 0.889),  # 5
    Part.Circle(V(36.754963, -29.763582, 0), V(0, 0, 1), 0.889),  # 6
    Part.Circle(V(16.94894, -44.1535, 0), V(0, 0, 1), 0.889),  # 7
    Part.Circle(V(39.664757, 25.758594, 0), V(0, 0, 1), 0.889),  # 8
    Part.Circle(V(12.240795, 45.683269, 0), V(0, 0, 1), 0.889),  # 9
], False)
sketch20.addConstraint([
    Sketcher.Constraint("Equal", 0, 1),
    Sketcher.Constraint("Equal", 1, 2),
    Sketcher.Constraint("Equal", 2, 3),
    Sketcher.Constraint("Equal", 3, 4),
    Sketcher.Constraint("Equal", 4, 5),
    Sketcher.Constraint("Equal", 5, 6),
    Sketcher.Constraint("Equal", 6, 7),
    Sketcher.Constraint("Equal", 7, 8),
    Sketcher.Constraint("Equal", 8, 9),
    Sketcher.Constraint("Symmetric", 2, 3, 5, 3, -2),
    Sketcher.Constraint("Symmetric", 3, 3, 6, 3, -2),
    Sketcher.Constraint("Symmetric", 4, 3, 7, 3, -2),
    Sketcher.Constraint("Symmetric", 1, 3, 8, 3, -2),
    Sketcher.Constraint("Symmetric", 0, 3, 9, 3, -2),
    Sketcher.Constraint("Diameter", 0, Q("0.07 in")),
    Sketcher.Constraint("DistanceY", 4, 3, -1, 1, Q("44.1535 mm")),
    Sketcher.Constraint("DistanceY", 3, 3, 2, 3, Q("32.238801 mm")),
    Sketcher.Constraint("DistanceY", -1, 1, 0, 3, Q("45.683269 mm")),
    Sketcher.Constraint("DistanceY", -1, 1, 2, 3, Q("2.475219 mm")),
    Sketcher.Constraint("DistanceX", 4, 3, -1, 1, Q("16.94894 mm")),
    Sketcher.Constraint("DistanceX", 1, 3, 0, 3, Q("27.423962 mm")),
    Sketcher.Constraint("DistanceX", 2, 3, 0, 3, Q("34.989189 mm")),
    Sketcher.Constraint("DistanceX", 2, 3, 3, 3, Q("10.475021 mm")),
    Sketcher.Constraint("DistanceX", 0, 3, 5, 3, Q("59.470779 mm")),
    Sketcher.Constraint("DistanceY", -1, 1, 1, 3, Q("25.758594 mm")),
])
pocket19 = body.newObject("PartDesign::Pocket", "Pocket018")
pocket19.Profile = sketch20
pocket19.Length = Q("0.25 in")

doc.recompute()
